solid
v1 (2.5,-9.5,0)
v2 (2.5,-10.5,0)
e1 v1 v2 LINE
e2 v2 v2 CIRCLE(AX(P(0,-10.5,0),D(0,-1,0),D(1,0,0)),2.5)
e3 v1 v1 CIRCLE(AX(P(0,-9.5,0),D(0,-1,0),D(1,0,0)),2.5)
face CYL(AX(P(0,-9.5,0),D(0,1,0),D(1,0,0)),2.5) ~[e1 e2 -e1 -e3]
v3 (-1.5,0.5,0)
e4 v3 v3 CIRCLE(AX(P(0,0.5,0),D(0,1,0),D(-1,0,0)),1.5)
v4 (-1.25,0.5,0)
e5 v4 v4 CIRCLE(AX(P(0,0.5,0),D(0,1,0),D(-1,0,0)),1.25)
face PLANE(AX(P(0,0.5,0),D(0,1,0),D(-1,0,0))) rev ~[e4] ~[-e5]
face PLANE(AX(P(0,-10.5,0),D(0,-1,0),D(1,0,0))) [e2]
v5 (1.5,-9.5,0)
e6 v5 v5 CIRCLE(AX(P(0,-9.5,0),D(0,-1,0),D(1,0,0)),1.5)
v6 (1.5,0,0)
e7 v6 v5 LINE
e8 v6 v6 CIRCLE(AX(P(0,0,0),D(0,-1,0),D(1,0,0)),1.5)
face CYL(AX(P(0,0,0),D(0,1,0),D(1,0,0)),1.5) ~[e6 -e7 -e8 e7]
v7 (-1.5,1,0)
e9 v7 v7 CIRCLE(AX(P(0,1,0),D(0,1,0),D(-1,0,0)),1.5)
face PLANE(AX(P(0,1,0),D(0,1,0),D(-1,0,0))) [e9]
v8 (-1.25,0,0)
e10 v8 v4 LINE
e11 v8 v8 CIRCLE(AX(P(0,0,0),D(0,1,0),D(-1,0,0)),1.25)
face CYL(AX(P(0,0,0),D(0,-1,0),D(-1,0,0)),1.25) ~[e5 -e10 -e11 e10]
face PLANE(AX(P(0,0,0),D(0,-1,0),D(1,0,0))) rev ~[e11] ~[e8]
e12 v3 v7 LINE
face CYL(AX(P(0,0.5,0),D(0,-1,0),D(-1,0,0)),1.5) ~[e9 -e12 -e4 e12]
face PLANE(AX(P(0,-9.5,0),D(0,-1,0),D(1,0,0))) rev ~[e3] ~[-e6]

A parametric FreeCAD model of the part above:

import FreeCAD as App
import Part
import Sketcher
from FreeCAD import Vector
Q = App.Units.Quantity

doc = App.newDocument("Part")
body = doc.addObject("PartDesign::Body", "Body")

# Sketch on XZ plane
sketch1 = body.newObject("Sketcher::SketchObject", "Sketch")
sketch1.AttachmentSupport = (doc.getObject("XZ_Plane"), [""])
sketch1.MapMode = "FlatFace"
sketch1.addGeometry(Part.Circle(Vector(0, 0, 0), Vector(0, 0, 1), 1.5), False)
sketch1.addConstraint(Sketcher.Constraint("Coincident", 0, 3, -1, 1))
sketch1.addConstraint(Sketcher.Constraint("Diameter", 0, Q("3 mm")))
pad1 = body.newObject("PartDesign::Pad", "Pad")
pad1.Profile = sketch1
pad1.Length = 9.5

# Sketch on XZ plane
sketch2 = body.newObject("Sketcher::SketchObject", "Sketch001")
sketch2.AttachmentSupport = (doc.getObject("XZ_Plane"), [""])
sketch2.MapMode = "FlatFace"
sketch2.AttachmentOffset = App.Placement(Vector(0, 0, 9.5), App.Rotation())
sketch2.addGeometry(Part.Circle(Vector(0, 0, 0), Vector(0, 0, 1), 2.5), False)
sketch2.addConstraint(Sketcher.Constraint("Coincident", 0, 3, -1, 1))
sketch2.addConstraint(Sketcher.Constraint("Diameter", 0, Q("5 mm")))
pad2 = body.newObject("PartDesign::Pad", "Pad001")
pad2.Profile = sketch2
pad2.Length = 1

# Sketch on XZ plane
sketch3 = body.newObject("Sketcher::SketchObject", "Sketch002")
sketch3.AttachmentSupport = (doc.getObject("XZ_Plane"), [""])
sketch3.MapMode = "FlatFace"
sketch3.addGeometry(Part.Circle(Vector(0, 0, 0), Vector(0, 0, 1), 1.25), False)
sketch3.addConstraint(Sketcher.Constraint("Coincident", 0, 3, -1, 1))
sketch3.addConstraint(Sketcher.Constraint("Diameter", 0, Q("2.5 mm")))
pad3 = body.newObject("PartDesign::Pad", "Pad002")
pad3.Profile = sketch3
pad3.Length = 0.5
pad3.Reversed = True

# Sketch on XZ plane
sketch4 = body.newObject("Sketcher::SketchObject", "Sketch003")
sketch4.AttachmentSupport = (doc.getObject("XZ_Plane"), [""])
sketch4.MapMode = "FlatFace"
sketch4.AttachmentOffset = App.Placement(Vector(0, 0, -0.5), App.Rotation())
sketch4.addGeometry(Part.Circle(Vector(0, 0, 0), Vector(0, 0, 1), 1.5), False)
sketch4.addConstraint(Sketcher.Constraint("Coincident", 0, 3, -1, 1))
sketch4.addConstraint(Sketcher.Constraint("Diameter", 0, Q("3 mm")))
pad4 = body.newObject("PartDesign::Pad", "Pad003")
pad4.Profile = sketch4
pad4.Length = 0.5
pad4.Reversed = True

doc.recompute()
